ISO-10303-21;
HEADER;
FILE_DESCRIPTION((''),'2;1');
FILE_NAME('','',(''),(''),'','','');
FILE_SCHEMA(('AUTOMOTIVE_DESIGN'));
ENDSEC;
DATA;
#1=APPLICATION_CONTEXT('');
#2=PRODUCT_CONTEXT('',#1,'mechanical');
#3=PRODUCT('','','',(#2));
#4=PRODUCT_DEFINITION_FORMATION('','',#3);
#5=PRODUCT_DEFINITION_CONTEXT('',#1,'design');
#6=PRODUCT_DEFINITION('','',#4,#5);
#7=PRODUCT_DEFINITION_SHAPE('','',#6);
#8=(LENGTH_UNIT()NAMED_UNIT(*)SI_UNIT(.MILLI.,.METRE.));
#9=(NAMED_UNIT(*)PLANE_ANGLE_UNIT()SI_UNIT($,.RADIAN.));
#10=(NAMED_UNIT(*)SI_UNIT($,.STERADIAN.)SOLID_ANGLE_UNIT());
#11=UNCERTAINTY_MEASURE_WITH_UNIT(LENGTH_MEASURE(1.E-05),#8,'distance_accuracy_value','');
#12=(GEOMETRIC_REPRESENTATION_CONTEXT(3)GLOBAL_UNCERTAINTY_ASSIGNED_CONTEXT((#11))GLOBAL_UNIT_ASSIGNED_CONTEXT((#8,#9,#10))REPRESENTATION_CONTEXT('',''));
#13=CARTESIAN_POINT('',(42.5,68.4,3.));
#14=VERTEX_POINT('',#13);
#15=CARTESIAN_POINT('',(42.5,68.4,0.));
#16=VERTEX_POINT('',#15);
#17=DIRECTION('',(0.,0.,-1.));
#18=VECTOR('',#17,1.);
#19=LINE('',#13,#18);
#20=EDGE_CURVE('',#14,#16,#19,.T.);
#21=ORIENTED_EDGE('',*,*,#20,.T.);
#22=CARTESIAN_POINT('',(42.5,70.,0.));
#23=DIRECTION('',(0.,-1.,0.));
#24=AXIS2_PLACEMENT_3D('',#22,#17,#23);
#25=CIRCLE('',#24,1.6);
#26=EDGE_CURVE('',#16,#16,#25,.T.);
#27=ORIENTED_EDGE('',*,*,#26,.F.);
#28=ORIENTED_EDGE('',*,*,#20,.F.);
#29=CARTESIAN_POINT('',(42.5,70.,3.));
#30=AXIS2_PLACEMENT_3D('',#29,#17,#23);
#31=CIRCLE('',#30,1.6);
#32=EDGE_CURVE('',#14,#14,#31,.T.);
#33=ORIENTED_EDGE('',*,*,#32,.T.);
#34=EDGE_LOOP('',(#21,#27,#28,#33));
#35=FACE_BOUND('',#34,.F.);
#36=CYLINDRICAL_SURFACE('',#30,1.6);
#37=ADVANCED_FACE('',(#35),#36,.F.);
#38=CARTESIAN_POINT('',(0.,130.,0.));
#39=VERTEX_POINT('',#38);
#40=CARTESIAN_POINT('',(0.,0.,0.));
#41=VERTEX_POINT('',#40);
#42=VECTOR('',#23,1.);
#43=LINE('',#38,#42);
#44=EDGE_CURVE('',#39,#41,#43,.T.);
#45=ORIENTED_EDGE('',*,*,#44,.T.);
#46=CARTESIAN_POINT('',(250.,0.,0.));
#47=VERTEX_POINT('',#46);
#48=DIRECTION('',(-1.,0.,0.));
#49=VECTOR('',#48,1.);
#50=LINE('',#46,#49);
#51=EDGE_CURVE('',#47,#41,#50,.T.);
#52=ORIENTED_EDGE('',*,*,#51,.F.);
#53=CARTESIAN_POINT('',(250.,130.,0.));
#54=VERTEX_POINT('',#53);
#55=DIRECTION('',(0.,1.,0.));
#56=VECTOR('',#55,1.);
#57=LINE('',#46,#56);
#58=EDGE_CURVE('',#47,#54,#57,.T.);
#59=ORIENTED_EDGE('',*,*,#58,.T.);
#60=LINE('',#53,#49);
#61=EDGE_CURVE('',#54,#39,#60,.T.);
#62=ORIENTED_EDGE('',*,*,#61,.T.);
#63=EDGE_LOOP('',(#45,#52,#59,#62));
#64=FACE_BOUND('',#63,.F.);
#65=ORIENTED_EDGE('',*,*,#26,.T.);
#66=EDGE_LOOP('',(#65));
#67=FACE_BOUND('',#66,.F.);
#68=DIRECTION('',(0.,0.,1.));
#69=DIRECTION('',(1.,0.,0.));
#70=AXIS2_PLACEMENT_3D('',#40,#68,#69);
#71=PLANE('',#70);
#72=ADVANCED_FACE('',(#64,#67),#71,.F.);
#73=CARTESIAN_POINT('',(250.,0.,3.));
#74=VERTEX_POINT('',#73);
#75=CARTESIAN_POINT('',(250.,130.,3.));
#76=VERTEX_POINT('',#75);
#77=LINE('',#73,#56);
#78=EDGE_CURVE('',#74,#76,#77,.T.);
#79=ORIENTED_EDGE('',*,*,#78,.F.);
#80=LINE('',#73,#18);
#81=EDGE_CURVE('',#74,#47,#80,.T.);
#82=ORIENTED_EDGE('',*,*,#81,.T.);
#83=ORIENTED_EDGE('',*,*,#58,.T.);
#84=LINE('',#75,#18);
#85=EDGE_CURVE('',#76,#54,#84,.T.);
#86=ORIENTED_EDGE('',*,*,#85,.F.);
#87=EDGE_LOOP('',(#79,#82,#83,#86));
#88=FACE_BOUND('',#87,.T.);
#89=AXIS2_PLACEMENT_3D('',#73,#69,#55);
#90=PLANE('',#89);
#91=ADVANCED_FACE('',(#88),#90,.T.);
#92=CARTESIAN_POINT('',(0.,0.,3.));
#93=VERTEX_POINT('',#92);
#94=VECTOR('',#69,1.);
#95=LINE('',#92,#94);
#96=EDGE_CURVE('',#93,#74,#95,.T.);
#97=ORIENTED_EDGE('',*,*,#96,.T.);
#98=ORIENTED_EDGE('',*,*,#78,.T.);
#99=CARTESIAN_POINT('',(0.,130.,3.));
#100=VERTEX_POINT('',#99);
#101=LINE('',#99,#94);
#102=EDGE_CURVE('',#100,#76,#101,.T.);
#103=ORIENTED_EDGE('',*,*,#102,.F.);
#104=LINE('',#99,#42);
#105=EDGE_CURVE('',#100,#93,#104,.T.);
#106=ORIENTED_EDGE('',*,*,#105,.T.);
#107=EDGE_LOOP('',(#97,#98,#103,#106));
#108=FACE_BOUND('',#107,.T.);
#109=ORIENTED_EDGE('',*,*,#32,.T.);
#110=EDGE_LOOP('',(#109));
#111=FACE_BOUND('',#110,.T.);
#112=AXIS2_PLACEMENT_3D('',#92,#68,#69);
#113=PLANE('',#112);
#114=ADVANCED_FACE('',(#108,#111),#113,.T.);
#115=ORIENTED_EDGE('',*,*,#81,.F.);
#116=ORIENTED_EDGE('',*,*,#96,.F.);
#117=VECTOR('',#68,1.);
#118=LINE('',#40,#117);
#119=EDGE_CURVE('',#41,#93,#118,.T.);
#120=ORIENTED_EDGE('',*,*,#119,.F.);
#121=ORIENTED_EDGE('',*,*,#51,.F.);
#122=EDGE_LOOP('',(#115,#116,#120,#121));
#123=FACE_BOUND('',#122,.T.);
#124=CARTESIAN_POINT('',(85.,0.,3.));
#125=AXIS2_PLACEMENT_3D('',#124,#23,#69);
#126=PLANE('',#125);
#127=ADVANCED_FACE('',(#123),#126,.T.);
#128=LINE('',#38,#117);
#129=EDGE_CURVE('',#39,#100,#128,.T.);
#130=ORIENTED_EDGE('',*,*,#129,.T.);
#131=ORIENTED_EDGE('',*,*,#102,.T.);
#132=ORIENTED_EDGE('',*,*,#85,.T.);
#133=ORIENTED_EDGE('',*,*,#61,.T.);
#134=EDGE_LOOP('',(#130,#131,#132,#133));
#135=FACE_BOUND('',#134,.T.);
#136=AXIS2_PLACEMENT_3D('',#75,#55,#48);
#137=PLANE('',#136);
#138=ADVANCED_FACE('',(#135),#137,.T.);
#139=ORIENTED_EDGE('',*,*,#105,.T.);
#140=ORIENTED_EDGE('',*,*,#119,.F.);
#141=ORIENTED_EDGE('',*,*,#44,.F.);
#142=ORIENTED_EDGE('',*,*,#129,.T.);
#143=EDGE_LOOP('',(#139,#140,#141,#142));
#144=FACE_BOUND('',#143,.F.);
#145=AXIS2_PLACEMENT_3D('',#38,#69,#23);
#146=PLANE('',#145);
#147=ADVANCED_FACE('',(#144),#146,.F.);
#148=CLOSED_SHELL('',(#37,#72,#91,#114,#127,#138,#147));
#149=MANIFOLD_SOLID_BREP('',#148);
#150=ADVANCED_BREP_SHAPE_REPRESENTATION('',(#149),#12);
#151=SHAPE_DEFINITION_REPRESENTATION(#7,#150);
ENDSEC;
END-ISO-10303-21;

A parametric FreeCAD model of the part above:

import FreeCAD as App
import Part
import Sketcher
Q = App.Units.Quantity


def add_polygon(sketch, points):
    """Adds a closed chain of lines whose ends are joined by coincident constraints."""
    first, n = sketch.GeometryCount, len(points)
    for a, b in zip(points, points[1:] + points[:1]):
        sketch.addGeometry(Part.LineSegment(App.Vector(*a, 0), App.Vector(*b, 0)), False)
    for i in range(n):
        sketch.addConstraint(Sketcher.Constraint("Coincident", first + i, 2, first + (i + 1) % n, 1))

doc = App.newDocument("Part")
body = doc.addObject("PartDesign::Body", "Body")

# Sketch on XY plane
sketch1 = doc.addObject("Sketcher::SketchObject", "Sketch")
body.addObject(sketch1)
sketch1.AttachmentSupport = (doc.XY_Plane, [""])
sketch1.MapMode = "FlatFace"
add_polygon(sketch1, [(0, 130), (0, 0), (85, 0), (85, 130)])  # lines 0-3
sketch1.addConstraint([
    Sketcher.Constraint("Vertical", 0),
    Sketcher.Constraint("Horizontal", 1),
    Sketcher.Constraint("Vertical", 2),
    Sketcher.Constraint("Horizontal", 3),
    Sketcher.Constraint("Coincident", 0, 2, -1, 1),
    Sketcher.Constraint("DistanceX", 1, 1, 1, 2, Q("85 mm")),
    Sketcher.Constraint("DistanceY", 0, 2, 0, 1, Q("130 mm")),
])
pad1 = doc.addObject("PartDesign::Pad", "Pad")
body.addObject(pad1)
pad1.Profile = sketch1
pad1.Length = 3

# Sketch on XY plane
sketch2 = doc.addObject("Sketcher::SketchObject", "Sketch001")
body.addObject(sketch2)
sketch2.AttachmentSupport = (doc.XY_Plane, [""])
sketch2.MapMode = "FlatFace"
sketch2.AttachmentOffset = App.Placement(App.Vector(0, 0, 3), App.Rotation())
sketch2.addGeometry(Part.Circle(App.Vector(42.5, 70, 0), App.Vector(0, 0, 1), 1.6), False)
sketch2.addConstraint([
    Sketcher.Constraint("Diameter", 0, Q("3.2 mm")),
    Sketcher.Constraint("DistanceY", -1, 1, 0, 3, Q("70 mm")),
    Sketcher.Constraint("DistanceX", -1, 1, 0, 3, Q("42.5 mm")),
])
doc.recompute()
hole = doc.addObject("PartDesign::Hole", "Hole")
body.addObject(hole)
hole.Profile = sketch2
hole.ThreadType = "None"
hole.Diameter = 3.2
hole.DepthType = "ThroughAll"

# Sketch on XY plane
sketch3 = doc.addObject("Sketcher::SketchObject", "Sketch002")
body.addObject(sketch3)
sketch3.AttachmentSupport = (doc.XY_Plane, [""])
sketch3.MapMode = "FlatFace"
sketch3.AttachmentOffset = App.Placement(App.Vector(0, 0, 3), App.Rotation())
add_polygon(sketch3, [(85, 130), (85, 0), (250, 0), (250, 130)])  # lines 0-3
sketch3.addConstraint([
    Sketcher.Constraint("Vertical", 0),
    Sketcher.Constraint("Horizontal", 1),
    Sketcher.Constraint("Vertical", 2),
    Sketcher.Constraint("Horizontal", 3),
    Sketcher.Constraint("PointOnObject", 0, 2, -1),
    Sketcher.Constraint("DistanceX", 1, 1, 1, 2, Q("165 mm")),
    Sketcher.Constraint("DistanceY", 0, 2, 0, 1, Q("130 mm")),
    Sketcher.Constraint("DistanceX", -1, 1, 0, 2, Q("85 mm")),
])
pad2 = doc.addObject("PartDesign::Pad", "Pad001")
body.addObject(pad2)
pad2.Profile = sketch3
pad2.Length = 3
pad2.Reversed = True

doc.recompute()
